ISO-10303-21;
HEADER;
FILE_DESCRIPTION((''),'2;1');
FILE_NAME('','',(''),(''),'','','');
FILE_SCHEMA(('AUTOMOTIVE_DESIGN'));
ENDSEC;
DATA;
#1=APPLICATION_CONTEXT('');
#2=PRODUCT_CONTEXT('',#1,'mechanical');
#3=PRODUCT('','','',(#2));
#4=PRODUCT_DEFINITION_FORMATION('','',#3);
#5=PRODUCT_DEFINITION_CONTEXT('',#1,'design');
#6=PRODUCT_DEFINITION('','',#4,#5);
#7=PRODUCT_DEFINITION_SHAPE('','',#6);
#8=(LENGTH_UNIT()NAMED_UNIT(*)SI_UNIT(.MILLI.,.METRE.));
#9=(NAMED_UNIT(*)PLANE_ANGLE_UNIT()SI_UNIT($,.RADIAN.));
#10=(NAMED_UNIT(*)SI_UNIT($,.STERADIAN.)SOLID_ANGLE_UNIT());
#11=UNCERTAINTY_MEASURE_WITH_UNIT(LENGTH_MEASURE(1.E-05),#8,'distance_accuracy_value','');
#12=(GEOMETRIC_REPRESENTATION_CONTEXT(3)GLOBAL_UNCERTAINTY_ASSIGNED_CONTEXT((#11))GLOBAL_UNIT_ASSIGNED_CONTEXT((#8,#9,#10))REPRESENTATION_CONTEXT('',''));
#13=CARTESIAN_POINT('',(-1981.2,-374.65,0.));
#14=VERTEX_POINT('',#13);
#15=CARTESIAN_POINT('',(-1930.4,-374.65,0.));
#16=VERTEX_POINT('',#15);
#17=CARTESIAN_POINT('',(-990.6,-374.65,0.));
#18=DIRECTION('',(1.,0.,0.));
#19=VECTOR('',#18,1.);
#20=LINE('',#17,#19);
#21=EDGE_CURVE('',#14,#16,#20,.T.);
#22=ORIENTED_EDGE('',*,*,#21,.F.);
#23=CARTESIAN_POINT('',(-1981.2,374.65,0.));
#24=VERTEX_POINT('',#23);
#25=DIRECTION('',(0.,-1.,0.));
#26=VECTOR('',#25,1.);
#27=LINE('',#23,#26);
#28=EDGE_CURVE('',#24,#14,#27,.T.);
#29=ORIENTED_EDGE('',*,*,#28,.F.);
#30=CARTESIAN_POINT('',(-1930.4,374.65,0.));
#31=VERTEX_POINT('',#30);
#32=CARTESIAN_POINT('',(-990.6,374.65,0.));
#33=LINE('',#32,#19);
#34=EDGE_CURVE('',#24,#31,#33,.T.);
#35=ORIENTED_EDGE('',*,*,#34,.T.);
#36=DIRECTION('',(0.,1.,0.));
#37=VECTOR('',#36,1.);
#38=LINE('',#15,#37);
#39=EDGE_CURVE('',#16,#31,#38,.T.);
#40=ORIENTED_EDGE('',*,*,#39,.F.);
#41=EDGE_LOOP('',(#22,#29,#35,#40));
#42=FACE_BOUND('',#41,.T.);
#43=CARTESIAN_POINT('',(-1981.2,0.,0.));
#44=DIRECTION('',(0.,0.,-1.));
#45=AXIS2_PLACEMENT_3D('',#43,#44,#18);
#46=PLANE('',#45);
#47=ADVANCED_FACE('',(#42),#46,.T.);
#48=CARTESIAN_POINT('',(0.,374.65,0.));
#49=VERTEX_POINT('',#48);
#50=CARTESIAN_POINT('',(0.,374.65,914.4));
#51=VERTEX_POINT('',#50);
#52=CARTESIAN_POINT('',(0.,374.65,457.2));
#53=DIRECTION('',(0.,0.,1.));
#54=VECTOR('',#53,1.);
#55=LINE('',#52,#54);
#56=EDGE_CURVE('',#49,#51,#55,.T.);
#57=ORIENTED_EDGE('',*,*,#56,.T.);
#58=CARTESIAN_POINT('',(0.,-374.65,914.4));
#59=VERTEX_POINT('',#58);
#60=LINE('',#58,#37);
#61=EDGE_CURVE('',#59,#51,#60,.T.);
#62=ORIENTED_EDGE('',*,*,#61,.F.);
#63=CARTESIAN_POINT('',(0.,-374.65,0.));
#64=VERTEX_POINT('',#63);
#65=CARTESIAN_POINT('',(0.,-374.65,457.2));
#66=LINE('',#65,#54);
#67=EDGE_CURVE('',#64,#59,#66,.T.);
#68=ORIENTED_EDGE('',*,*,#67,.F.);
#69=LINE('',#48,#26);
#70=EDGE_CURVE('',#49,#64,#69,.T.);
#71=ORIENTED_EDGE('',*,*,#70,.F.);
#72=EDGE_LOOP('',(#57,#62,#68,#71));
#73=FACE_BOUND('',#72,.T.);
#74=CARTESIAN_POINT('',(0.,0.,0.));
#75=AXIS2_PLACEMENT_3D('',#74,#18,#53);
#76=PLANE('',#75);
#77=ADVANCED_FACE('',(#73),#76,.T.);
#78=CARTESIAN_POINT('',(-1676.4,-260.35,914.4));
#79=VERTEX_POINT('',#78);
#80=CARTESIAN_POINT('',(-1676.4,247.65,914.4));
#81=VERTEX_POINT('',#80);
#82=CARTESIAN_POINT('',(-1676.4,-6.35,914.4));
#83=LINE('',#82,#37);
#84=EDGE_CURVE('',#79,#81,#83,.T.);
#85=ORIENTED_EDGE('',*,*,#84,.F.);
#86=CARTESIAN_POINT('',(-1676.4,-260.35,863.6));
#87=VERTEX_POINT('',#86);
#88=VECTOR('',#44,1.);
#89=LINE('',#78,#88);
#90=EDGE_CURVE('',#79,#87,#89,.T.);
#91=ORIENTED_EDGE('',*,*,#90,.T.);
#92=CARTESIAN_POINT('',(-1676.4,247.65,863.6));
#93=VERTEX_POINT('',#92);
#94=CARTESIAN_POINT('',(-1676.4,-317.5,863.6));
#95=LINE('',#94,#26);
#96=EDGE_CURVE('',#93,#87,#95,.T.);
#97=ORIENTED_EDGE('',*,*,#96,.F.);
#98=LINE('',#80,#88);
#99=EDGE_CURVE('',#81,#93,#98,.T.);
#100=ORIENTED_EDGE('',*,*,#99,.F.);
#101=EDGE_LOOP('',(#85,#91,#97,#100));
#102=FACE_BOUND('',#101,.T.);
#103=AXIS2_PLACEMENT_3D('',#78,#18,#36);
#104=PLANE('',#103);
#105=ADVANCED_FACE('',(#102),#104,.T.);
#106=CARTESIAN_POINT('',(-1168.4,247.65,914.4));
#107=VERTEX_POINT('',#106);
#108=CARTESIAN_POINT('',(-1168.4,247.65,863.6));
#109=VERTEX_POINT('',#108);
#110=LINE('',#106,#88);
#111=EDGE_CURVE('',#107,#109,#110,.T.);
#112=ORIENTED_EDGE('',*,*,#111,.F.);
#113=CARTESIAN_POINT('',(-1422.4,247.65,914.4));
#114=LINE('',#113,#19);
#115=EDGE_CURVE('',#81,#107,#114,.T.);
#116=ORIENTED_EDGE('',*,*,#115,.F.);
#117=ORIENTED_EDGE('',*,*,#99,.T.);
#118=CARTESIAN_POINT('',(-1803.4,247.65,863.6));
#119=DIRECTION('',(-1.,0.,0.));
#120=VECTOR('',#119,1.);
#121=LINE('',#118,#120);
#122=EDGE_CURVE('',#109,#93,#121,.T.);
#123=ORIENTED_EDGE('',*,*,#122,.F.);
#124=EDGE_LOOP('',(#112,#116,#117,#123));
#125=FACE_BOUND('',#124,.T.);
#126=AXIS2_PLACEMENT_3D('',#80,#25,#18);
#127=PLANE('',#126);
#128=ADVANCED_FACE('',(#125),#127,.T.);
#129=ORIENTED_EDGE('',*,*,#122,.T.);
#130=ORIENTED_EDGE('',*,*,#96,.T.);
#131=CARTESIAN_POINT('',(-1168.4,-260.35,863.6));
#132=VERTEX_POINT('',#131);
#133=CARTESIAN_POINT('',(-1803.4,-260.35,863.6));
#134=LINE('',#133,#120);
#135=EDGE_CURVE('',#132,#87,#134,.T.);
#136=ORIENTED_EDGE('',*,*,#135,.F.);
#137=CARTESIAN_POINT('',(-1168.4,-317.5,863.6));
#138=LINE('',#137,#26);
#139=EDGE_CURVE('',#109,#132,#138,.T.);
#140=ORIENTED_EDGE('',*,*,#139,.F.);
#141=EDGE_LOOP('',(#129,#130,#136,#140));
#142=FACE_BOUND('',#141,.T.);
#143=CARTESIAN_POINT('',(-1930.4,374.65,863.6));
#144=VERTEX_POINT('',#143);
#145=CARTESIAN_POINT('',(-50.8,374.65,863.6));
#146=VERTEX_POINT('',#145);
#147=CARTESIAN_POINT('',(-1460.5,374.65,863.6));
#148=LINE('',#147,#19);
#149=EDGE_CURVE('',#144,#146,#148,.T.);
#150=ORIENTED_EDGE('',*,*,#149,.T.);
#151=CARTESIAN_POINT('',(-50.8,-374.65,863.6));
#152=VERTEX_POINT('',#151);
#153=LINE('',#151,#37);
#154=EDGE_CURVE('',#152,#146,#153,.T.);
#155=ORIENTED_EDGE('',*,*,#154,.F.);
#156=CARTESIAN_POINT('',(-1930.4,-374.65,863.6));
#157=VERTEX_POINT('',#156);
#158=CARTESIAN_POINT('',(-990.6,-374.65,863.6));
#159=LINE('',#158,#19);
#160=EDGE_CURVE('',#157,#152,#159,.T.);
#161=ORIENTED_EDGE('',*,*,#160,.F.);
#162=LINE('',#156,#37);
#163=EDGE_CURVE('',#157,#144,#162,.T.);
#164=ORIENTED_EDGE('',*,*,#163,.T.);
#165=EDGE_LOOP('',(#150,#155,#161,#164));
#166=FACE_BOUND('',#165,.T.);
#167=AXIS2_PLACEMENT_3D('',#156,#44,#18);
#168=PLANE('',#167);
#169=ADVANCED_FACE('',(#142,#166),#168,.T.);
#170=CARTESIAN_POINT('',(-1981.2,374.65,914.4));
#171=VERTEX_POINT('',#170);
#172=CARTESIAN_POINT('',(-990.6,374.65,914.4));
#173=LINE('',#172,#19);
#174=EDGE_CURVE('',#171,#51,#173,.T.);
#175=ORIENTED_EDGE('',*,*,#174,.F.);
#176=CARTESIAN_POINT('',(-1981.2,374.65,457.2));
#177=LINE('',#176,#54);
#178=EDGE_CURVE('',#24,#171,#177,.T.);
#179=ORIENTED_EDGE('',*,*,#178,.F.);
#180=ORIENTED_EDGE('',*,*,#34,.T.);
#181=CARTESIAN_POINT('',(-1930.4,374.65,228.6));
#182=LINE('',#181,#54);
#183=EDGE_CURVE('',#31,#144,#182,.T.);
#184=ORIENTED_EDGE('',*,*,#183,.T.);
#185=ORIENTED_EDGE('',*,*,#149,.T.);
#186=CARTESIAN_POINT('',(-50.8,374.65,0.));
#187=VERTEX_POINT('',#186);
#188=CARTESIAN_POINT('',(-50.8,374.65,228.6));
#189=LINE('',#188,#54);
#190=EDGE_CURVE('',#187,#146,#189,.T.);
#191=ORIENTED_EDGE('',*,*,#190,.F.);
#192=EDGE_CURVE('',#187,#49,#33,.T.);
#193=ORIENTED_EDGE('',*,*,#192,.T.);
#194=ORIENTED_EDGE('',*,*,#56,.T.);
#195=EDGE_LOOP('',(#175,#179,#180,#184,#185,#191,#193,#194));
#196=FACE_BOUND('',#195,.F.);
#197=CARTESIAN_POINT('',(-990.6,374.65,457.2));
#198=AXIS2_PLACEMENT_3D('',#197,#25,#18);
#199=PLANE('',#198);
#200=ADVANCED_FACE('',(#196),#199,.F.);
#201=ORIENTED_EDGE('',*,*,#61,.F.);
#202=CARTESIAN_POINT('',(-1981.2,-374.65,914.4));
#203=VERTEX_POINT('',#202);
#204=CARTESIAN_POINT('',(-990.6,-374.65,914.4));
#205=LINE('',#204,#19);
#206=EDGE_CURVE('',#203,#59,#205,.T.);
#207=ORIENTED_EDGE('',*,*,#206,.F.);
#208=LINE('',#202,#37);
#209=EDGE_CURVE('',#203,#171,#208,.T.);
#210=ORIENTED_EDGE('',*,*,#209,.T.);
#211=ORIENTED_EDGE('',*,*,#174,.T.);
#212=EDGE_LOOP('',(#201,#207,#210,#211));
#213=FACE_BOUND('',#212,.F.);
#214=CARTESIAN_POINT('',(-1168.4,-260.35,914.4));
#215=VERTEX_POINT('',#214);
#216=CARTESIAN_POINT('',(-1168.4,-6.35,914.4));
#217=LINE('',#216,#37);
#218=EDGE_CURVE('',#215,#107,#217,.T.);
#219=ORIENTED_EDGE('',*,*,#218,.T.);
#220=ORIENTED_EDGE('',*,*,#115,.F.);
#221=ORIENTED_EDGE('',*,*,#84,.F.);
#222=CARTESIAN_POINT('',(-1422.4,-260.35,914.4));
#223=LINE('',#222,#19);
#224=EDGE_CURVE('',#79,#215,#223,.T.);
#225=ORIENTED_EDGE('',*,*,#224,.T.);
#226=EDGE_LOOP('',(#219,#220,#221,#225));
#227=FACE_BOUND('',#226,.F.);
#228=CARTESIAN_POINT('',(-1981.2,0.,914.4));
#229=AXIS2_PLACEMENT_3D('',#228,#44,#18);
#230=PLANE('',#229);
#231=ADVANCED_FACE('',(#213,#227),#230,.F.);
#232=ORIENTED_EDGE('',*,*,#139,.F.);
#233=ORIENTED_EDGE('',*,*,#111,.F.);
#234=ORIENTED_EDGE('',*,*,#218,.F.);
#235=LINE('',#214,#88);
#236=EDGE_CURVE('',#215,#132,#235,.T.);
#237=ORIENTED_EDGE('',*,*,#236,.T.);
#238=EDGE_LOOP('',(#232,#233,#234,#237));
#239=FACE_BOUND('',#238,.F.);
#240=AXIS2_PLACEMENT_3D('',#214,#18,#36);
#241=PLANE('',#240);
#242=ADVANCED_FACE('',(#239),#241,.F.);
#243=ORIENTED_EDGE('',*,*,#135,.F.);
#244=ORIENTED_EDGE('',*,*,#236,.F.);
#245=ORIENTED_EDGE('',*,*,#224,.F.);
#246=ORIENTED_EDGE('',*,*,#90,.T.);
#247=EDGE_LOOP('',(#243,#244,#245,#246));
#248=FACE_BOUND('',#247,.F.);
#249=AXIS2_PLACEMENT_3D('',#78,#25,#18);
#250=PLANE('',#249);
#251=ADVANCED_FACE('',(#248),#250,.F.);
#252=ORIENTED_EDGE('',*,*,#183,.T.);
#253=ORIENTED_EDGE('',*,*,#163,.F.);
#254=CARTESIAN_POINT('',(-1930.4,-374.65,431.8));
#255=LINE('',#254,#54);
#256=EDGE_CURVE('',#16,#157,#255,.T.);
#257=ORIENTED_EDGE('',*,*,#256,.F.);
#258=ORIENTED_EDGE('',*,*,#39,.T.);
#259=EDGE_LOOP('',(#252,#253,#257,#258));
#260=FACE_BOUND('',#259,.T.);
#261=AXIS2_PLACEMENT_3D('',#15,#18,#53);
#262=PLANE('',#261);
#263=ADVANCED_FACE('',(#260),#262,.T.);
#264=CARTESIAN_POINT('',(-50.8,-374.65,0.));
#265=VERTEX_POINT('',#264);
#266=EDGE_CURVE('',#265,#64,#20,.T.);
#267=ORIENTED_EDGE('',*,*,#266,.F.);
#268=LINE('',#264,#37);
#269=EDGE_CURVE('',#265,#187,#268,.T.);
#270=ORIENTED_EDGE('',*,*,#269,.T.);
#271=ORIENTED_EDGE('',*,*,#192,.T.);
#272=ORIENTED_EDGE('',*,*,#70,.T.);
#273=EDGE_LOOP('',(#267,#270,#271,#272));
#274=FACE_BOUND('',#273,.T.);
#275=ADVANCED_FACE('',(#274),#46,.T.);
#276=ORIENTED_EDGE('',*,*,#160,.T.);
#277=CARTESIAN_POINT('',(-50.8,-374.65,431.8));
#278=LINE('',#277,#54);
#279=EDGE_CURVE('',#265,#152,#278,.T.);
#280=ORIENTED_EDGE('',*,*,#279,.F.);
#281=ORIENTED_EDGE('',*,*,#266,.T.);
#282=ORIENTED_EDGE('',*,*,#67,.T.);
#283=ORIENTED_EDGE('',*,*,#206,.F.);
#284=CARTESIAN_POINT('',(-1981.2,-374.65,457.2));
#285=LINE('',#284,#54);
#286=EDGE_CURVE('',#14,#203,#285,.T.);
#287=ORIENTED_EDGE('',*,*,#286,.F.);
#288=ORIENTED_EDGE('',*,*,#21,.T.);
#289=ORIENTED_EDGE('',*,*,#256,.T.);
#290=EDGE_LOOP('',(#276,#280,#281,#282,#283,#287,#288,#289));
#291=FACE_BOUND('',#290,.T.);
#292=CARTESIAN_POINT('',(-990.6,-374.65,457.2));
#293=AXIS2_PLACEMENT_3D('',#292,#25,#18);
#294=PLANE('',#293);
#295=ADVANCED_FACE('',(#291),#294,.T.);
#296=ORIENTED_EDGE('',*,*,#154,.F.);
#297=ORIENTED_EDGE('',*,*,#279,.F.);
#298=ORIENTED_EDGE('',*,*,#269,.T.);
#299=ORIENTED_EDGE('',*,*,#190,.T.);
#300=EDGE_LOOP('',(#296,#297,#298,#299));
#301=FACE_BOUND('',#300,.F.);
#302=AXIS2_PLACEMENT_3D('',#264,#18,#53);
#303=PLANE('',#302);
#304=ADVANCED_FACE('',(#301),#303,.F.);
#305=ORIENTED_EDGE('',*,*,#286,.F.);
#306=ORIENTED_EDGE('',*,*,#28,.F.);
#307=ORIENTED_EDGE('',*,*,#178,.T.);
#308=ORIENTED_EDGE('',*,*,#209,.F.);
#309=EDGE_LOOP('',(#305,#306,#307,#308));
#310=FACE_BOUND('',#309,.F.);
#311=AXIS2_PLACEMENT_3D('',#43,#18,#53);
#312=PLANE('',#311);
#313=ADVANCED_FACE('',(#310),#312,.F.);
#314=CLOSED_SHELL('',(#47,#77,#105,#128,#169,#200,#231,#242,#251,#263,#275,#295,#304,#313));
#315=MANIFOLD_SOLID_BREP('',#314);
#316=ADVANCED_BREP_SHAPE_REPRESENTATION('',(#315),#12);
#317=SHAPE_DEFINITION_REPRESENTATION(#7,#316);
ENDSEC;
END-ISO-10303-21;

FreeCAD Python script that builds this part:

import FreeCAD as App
import Part
import Sketcher
from FreeCAD import Vector
Q = App.Units.Quantity


def add_polygon(sketch, points):
    """Adds a closed chain of lines whose ends are joined by coincident constraints."""
    first, n = sketch.GeometryCount, len(points)
    for a, b in zip(points, points[1:] + points[:1]):
        sketch.addGeometry(Part.LineSegment(App.Vector(*a, 0), App.Vector(*b, 0)), False)
    for i in range(n):
        sketch.addConstraint(Sketcher.Constraint("Coincident", first + i, 2, first + (i + 1) % n, 1))

doc = App.newDocument("Part")
params = doc.addObject("Spreadsheet::Sheet", "Params")
for row, (alias, value) in enumerate([
    ("sketch1_width", "78 in"),
    ("sketch1_height", "36 in"),
    ("pad1_length", "29.5 in"),
    ("sketch2_width", "74 in"),
    ("sketch2_height", "34 in"),
    ("sketch3_width", "20 in"),
], start=1):
    params.set(f"A{row}", alias)
    params.set(f"B{row}", "=" + value)
    params.setAlias(f"B{row}", alias)

body = doc.addObject("PartDesign::Body", "Body")

# Sketch on XZ plane
sketch1 = body.newObject("Sketcher::SketchObject", "Sketch")
sketch1.AttachmentSupport = (doc.getObject("XZ_Plane"), [""])
sketch1.MapMode = "FlatFace"
add_polygon(sketch1, [(-1981.2, 914.4), (-1981.2, 0), (0, 0), (0, 914.4)])  # lines 0-3
sketch1.addConstraint([
    Sketcher.Constraint("Vertical", 0),
    Sketcher.Constraint("Horizontal", 1),
    Sketcher.Constraint("Vertical", 2),
    Sketcher.Constraint("Horizontal", 3),
    Sketcher.Constraint("Coincident", 1, 2, -1, 1),
    Sketcher.Constraint("DistanceX", 1, 1, 1, 2, Q("78 in")),
    Sketcher.Constraint("DistanceY", 0, 2, 0, 1, Q("36 in")),
])
sketch1.setExpression("Constraints[9]", "Params.sketch1_width")
sketch1.setExpression("Constraints[10]", "Params.sketch1_height")
pad1 = body.newObject("PartDesign::Pad", "Pad")
pad1.Profile = sketch1
pad1.setExpression("Length", "Params.pad1_length")
pad1.Midplane = True

# Sketch on XZ plane
sketch2 = body.newObject("Sketcher::SketchObject", "Sketch001")
sketch2.AttachmentSupport = (doc.getObject("XZ_Plane"), [""])
sketch2.MapMode = "FlatFace"
sketch2.AttachmentOffset = App.Placement(Vector(0, 0, 14.75 * 25.4), App.Rotation())
add_polygon(sketch2, [(-1930.4, 863.6), (-1930.4, 0), (-50.8, 0), (-50.8, 863.6)])  # lines 0-3
sketch2.addConstraint([
    Sketcher.Constraint("Vertical", 0),
    Sketcher.Constraint("Horizontal", 1),
    Sketcher.Constraint("Vertical", 2),
    Sketcher.Constraint("Horizontal", 3),
    Sketcher.Constraint("PointOnObject", 0, 2, -1),
    Sketcher.Constraint("DistanceX", 1, 1, 1, 2, Q("74 in")),
    Sketcher.Constraint("DistanceY", 0, 2, 0, 1, Q("34 in")),
    Sketcher.Constraint("DistanceX", 0, 2, -1, 1, Q("76 in")),
])
sketch2.setExpression("Constraints[9]", "Params.sketch2_width")
sketch2.setExpression("Constraints[10]", "Params.sketch2_height")
pocket1 = body.newObject("PartDesign::Pocket", "Pocket")
pocket1.Profile = sketch2
pocket1.Type = "ThroughAll"

# Sketch on XY plane
sketch3 = body.newObject("Sketcher::SketchObject", "Sketch002")
sketch3.AttachmentSupport = (doc.getObject("XY_Plane"), [""])
sketch3.MapMode = "FlatFace"
sketch3.AttachmentOffset = App.Placement(Vector(0, 0, 36 * 25.4), App.Rotation())
add_polygon(sketch3, [(-1676.4, 247.65), (-1676.4, -260.35), (-1168.4, -260.35), (-1168.4, 247.65)])  # lines 0-3
sketch3.addConstraint([
    Sketcher.Constraint("Vertical", 0),
    Sketcher.Constraint("Horizontal", 1),
    Sketcher.Constraint("Vertical", 2),
    Sketcher.Constraint("Horizontal", 3),
    Sketcher.Constraint("Equal", 3, 0),
    Sketcher.Constraint("DistanceX", 1, 1, 1, 2, Q("20 in")),
    Sketcher.Constraint("DistanceX", 0, 2, -1, 1, Q("66 in")),
    Sketcher.Constraint("DistanceY", 0, 2, -1, 1, Q("10.25 in")),
])
sketch3.setExpression("Constraints[9]", "Params.sketch3_width")
pocket2 = body.newObject("PartDesign::Pocket", "Pocket001")
pocket2.Profile = sketch3
pocket2.Type = "ThroughAll"

doc.recompute()
